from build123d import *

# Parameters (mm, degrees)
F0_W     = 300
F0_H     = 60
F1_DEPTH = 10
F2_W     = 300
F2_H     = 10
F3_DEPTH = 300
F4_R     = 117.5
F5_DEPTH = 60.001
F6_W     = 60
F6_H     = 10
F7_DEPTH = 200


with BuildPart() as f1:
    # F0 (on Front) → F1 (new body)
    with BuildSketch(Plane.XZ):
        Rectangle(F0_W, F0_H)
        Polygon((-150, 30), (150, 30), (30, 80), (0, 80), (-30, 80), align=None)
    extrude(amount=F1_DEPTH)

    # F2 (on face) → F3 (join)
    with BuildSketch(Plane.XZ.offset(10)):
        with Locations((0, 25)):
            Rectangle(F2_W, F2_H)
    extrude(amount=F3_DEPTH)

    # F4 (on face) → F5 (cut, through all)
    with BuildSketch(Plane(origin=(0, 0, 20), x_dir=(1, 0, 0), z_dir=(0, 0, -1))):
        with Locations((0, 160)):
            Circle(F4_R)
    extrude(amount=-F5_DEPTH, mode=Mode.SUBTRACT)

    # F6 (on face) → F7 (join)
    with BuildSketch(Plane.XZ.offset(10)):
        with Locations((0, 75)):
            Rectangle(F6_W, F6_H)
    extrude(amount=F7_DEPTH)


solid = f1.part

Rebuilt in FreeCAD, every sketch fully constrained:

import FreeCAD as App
import Part
import Sketcher


def add_polygon(sketch, points):
    """Adds a closed chain of lines whose ends are joined by coincident constraints."""
    first, n = sketch.GeometryCount, len(points)
    for a, b in zip(points, points[1:] + points[:1]):
        sketch.addGeometry(Part.LineSegment(App.Vector(*a, 0), App.Vector(*b, 0)), False)
    for i in range(n):
        sketch.addConstraint(Sketcher.Constraint("Coincident", first + i, 2, first + (i + 1) % n, 1))

doc = App.newDocument("Part")
params = doc.addObject("Spreadsheet::Sheet", "Params")
for row, (alias, value) in enumerate([
    ("sketch1_width", "300 mm"),
    ("sketch1_width2", "60 mm"),
    ("sketch1_length", "130 mm"),
    ("pad1_length", "10 mm"),
    ("sketch2_width", "300 mm"),
    ("sketch2_height", "10 mm"),
    ("pad2_length", "300 mm"),
    ("sketch3_diameter", "235 mm"),
    ("sketch4_width", "60 mm"),
    ("sketch4_height", "10 mm"),
    ("pad3_length", "200 mm"),
], start=1):
    params.set(f"A{row}", alias)
    params.set(f"B{row}", "=" + value)
    params.setAlias(f"B{row}", alias)

body = doc.addObject("PartDesign::Body", "Body")

# Sketch on XZ plane
sketch1 = doc.addObject("Sketcher::SketchObject", "Sketch")
body.addObject(sketch1)
sketch1.AttachmentSupport = (doc.XZ_Plane, [""])
sketch1.MapMode = "FlatFace"
add_polygon(sketch1, [(-150, 30), (-150, -30), (150, -30), (150, 30), (30, 80), (-30, 80)])  # lines 0-5
sketch1.addConstraint([
    Sketcher.Constraint("Vertical", 0),
    Sketcher.Constraint("Horizontal", 1),
    Sketcher.Constraint("Vertical", 2),
    Sketcher.Constraint("Horizontal", 4),
    Sketcher.Constraint("Symmetric", 0, 2, 2, 2, -1, 1),
    Sketcher.Constraint("Horizontal", 2, 2, 5, 2),
    Sketcher.Constraint("Equal", 4, 0),
    Sketcher.Constraint("Equal", 3, 5),
    Sketcher.Constraint("DistanceX", 1, 1, 1, 2, 300.0),
    Sketcher.Constraint("DistanceX", 4, 2, 4, 1, 60.0),
    Sketcher.Constraint("Distance", 3, 130.0),
])
sketch1.setExpression("Constraints[14]", "Params.sketch1_width")
sketch1.setExpression("Constraints[15]", "Params.sketch1_width2")
sketch1.setExpression("Constraints[16]", "Params.sketch1_length")
pad1 = doc.addObject("PartDesign::Pad", "Pad")
body.addObject(pad1)
pad1.Profile = sketch1
pad1.setExpression("Length", "Params.pad1_length")

# Sketch on XZ plane
sketch2 = doc.addObject("Sketcher::SketchObject", "Sketch001")
body.addObject(sketch2)
sketch2.AttachmentSupport = (doc.XZ_Plane, [""])
sketch2.MapMode = "FlatFace"
sketch2.AttachmentOffset = App.Placement(App.Vector(0, 0, 10), App.Rotation())
add_polygon(sketch2, [(-150, 30), (-150, 20), (150, 20), (150, 30)])  # lines 0-3
sketch2.addConstraint([
    Sketcher.Constraint("Vertical", 0),
    Sketcher.Constraint("Horizontal", 1),
    Sketcher.Constraint("Vertical", 2),
    Sketcher.Constraint("Horizontal", 3),
    Sketcher.Constraint("DistanceX", 1, 1, 1, 2, 300.0),
    Sketcher.Constraint("DistanceY", 0, 2, 0, 1, 10.0),
    Sketcher.Constraint("DistanceX", 0, 2, -1, 1, 150.0),
    Sketcher.Constraint("DistanceY", -1, 1, 0, 2, 20.0),
])
sketch2.setExpression("Constraints[8]", "Params.sketch2_width")
sketch2.setExpression("Constraints[9]", "Params.sketch2_height")
pad2 = doc.addObject("PartDesign::Pad", "Pad001")
body.addObject(pad2)
pad2.Profile = sketch2
pad2.setExpression("Length", "Params.pad2_length")

# Sketch on XY plane
sketch3 = doc.addObject("Sketcher::SketchObject", "Sketch002")
body.addObject(sketch3)
sketch3.AttachmentSupport = (doc.XY_Plane, [""])
sketch3.MapMode = "FlatFace"
sketch3.AttachmentOffset = App.Placement(App.Vector(0, 0, 20), App.Rotation())
sketch3.addGeometry(Part.Circle(App.Vector(0, -160, 0), App.Vector(0, 0, 1), 117.5), False)
sketch3.addConstraint([
    Sketcher.Constraint("PointOnObject", 0, 3, -2),
    Sketcher.Constraint("Diameter", 0, 235.0),
    Sketcher.Constraint("DistanceY", 0, 3, -1, 1, 160.0),
])
sketch3.setExpression("Constraints[1]", "Params.sketch3_diameter")
pocket1 = doc.addObject("PartDesign::Pocket", "Pocket")
body.addObject(pocket1)
pocket1.Profile = sketch3
pocket1.Type = "ThroughAll"
pocket1.Reversed = True

# Sketch on XZ plane
sketch4 = doc.addObject("Sketcher::SketchObject", "Sketch003")
body.addObject(sketch4)
sketch4.AttachmentSupport = (doc.XZ_Plane, [""])
sketch4.MapMode = "FlatFace"
sketch4.AttachmentOffset = App.Placement(App.Vector(0, 0, 10), App.Rotation())
add_polygon(sketch4, [(-30, 80), (-30, 70), (30, 70), (30, 80)])  # lines 0-3
sketch4.addConstraint([
    Sketcher.Constraint("Vertical", 0),
    Sketcher.Constraint("Horizontal", 1),
    Sketcher.Constraint("Vertical", 2),
    Sketcher.Constraint("Horizontal", 3),
    Sketcher.Constraint("DistanceX", 1, 1, 1, 2, 60.0),
    Sketcher.Constraint("DistanceY", 0, 2, 0, 1, 10.0),
    Sketcher.Constraint("DistanceX", 0, 2, -1, 1, 30.0),
    Sketcher.Constraint("DistanceY", -1, 1, 0, 2, 70.0),
])
sketch4.setExpression("Constraints[8]", "Params.sketch4_width")
sketch4.setExpression("Constraints[9]", "Params.sketch4_height")
pad3 = doc.addObject("PartDesign::Pad", "Pad002")
body.addObject(pad3)
pad3.Profile = sketch4
pad3.setExpression("Length", "Params.pad3_length")

doc.recompute()
